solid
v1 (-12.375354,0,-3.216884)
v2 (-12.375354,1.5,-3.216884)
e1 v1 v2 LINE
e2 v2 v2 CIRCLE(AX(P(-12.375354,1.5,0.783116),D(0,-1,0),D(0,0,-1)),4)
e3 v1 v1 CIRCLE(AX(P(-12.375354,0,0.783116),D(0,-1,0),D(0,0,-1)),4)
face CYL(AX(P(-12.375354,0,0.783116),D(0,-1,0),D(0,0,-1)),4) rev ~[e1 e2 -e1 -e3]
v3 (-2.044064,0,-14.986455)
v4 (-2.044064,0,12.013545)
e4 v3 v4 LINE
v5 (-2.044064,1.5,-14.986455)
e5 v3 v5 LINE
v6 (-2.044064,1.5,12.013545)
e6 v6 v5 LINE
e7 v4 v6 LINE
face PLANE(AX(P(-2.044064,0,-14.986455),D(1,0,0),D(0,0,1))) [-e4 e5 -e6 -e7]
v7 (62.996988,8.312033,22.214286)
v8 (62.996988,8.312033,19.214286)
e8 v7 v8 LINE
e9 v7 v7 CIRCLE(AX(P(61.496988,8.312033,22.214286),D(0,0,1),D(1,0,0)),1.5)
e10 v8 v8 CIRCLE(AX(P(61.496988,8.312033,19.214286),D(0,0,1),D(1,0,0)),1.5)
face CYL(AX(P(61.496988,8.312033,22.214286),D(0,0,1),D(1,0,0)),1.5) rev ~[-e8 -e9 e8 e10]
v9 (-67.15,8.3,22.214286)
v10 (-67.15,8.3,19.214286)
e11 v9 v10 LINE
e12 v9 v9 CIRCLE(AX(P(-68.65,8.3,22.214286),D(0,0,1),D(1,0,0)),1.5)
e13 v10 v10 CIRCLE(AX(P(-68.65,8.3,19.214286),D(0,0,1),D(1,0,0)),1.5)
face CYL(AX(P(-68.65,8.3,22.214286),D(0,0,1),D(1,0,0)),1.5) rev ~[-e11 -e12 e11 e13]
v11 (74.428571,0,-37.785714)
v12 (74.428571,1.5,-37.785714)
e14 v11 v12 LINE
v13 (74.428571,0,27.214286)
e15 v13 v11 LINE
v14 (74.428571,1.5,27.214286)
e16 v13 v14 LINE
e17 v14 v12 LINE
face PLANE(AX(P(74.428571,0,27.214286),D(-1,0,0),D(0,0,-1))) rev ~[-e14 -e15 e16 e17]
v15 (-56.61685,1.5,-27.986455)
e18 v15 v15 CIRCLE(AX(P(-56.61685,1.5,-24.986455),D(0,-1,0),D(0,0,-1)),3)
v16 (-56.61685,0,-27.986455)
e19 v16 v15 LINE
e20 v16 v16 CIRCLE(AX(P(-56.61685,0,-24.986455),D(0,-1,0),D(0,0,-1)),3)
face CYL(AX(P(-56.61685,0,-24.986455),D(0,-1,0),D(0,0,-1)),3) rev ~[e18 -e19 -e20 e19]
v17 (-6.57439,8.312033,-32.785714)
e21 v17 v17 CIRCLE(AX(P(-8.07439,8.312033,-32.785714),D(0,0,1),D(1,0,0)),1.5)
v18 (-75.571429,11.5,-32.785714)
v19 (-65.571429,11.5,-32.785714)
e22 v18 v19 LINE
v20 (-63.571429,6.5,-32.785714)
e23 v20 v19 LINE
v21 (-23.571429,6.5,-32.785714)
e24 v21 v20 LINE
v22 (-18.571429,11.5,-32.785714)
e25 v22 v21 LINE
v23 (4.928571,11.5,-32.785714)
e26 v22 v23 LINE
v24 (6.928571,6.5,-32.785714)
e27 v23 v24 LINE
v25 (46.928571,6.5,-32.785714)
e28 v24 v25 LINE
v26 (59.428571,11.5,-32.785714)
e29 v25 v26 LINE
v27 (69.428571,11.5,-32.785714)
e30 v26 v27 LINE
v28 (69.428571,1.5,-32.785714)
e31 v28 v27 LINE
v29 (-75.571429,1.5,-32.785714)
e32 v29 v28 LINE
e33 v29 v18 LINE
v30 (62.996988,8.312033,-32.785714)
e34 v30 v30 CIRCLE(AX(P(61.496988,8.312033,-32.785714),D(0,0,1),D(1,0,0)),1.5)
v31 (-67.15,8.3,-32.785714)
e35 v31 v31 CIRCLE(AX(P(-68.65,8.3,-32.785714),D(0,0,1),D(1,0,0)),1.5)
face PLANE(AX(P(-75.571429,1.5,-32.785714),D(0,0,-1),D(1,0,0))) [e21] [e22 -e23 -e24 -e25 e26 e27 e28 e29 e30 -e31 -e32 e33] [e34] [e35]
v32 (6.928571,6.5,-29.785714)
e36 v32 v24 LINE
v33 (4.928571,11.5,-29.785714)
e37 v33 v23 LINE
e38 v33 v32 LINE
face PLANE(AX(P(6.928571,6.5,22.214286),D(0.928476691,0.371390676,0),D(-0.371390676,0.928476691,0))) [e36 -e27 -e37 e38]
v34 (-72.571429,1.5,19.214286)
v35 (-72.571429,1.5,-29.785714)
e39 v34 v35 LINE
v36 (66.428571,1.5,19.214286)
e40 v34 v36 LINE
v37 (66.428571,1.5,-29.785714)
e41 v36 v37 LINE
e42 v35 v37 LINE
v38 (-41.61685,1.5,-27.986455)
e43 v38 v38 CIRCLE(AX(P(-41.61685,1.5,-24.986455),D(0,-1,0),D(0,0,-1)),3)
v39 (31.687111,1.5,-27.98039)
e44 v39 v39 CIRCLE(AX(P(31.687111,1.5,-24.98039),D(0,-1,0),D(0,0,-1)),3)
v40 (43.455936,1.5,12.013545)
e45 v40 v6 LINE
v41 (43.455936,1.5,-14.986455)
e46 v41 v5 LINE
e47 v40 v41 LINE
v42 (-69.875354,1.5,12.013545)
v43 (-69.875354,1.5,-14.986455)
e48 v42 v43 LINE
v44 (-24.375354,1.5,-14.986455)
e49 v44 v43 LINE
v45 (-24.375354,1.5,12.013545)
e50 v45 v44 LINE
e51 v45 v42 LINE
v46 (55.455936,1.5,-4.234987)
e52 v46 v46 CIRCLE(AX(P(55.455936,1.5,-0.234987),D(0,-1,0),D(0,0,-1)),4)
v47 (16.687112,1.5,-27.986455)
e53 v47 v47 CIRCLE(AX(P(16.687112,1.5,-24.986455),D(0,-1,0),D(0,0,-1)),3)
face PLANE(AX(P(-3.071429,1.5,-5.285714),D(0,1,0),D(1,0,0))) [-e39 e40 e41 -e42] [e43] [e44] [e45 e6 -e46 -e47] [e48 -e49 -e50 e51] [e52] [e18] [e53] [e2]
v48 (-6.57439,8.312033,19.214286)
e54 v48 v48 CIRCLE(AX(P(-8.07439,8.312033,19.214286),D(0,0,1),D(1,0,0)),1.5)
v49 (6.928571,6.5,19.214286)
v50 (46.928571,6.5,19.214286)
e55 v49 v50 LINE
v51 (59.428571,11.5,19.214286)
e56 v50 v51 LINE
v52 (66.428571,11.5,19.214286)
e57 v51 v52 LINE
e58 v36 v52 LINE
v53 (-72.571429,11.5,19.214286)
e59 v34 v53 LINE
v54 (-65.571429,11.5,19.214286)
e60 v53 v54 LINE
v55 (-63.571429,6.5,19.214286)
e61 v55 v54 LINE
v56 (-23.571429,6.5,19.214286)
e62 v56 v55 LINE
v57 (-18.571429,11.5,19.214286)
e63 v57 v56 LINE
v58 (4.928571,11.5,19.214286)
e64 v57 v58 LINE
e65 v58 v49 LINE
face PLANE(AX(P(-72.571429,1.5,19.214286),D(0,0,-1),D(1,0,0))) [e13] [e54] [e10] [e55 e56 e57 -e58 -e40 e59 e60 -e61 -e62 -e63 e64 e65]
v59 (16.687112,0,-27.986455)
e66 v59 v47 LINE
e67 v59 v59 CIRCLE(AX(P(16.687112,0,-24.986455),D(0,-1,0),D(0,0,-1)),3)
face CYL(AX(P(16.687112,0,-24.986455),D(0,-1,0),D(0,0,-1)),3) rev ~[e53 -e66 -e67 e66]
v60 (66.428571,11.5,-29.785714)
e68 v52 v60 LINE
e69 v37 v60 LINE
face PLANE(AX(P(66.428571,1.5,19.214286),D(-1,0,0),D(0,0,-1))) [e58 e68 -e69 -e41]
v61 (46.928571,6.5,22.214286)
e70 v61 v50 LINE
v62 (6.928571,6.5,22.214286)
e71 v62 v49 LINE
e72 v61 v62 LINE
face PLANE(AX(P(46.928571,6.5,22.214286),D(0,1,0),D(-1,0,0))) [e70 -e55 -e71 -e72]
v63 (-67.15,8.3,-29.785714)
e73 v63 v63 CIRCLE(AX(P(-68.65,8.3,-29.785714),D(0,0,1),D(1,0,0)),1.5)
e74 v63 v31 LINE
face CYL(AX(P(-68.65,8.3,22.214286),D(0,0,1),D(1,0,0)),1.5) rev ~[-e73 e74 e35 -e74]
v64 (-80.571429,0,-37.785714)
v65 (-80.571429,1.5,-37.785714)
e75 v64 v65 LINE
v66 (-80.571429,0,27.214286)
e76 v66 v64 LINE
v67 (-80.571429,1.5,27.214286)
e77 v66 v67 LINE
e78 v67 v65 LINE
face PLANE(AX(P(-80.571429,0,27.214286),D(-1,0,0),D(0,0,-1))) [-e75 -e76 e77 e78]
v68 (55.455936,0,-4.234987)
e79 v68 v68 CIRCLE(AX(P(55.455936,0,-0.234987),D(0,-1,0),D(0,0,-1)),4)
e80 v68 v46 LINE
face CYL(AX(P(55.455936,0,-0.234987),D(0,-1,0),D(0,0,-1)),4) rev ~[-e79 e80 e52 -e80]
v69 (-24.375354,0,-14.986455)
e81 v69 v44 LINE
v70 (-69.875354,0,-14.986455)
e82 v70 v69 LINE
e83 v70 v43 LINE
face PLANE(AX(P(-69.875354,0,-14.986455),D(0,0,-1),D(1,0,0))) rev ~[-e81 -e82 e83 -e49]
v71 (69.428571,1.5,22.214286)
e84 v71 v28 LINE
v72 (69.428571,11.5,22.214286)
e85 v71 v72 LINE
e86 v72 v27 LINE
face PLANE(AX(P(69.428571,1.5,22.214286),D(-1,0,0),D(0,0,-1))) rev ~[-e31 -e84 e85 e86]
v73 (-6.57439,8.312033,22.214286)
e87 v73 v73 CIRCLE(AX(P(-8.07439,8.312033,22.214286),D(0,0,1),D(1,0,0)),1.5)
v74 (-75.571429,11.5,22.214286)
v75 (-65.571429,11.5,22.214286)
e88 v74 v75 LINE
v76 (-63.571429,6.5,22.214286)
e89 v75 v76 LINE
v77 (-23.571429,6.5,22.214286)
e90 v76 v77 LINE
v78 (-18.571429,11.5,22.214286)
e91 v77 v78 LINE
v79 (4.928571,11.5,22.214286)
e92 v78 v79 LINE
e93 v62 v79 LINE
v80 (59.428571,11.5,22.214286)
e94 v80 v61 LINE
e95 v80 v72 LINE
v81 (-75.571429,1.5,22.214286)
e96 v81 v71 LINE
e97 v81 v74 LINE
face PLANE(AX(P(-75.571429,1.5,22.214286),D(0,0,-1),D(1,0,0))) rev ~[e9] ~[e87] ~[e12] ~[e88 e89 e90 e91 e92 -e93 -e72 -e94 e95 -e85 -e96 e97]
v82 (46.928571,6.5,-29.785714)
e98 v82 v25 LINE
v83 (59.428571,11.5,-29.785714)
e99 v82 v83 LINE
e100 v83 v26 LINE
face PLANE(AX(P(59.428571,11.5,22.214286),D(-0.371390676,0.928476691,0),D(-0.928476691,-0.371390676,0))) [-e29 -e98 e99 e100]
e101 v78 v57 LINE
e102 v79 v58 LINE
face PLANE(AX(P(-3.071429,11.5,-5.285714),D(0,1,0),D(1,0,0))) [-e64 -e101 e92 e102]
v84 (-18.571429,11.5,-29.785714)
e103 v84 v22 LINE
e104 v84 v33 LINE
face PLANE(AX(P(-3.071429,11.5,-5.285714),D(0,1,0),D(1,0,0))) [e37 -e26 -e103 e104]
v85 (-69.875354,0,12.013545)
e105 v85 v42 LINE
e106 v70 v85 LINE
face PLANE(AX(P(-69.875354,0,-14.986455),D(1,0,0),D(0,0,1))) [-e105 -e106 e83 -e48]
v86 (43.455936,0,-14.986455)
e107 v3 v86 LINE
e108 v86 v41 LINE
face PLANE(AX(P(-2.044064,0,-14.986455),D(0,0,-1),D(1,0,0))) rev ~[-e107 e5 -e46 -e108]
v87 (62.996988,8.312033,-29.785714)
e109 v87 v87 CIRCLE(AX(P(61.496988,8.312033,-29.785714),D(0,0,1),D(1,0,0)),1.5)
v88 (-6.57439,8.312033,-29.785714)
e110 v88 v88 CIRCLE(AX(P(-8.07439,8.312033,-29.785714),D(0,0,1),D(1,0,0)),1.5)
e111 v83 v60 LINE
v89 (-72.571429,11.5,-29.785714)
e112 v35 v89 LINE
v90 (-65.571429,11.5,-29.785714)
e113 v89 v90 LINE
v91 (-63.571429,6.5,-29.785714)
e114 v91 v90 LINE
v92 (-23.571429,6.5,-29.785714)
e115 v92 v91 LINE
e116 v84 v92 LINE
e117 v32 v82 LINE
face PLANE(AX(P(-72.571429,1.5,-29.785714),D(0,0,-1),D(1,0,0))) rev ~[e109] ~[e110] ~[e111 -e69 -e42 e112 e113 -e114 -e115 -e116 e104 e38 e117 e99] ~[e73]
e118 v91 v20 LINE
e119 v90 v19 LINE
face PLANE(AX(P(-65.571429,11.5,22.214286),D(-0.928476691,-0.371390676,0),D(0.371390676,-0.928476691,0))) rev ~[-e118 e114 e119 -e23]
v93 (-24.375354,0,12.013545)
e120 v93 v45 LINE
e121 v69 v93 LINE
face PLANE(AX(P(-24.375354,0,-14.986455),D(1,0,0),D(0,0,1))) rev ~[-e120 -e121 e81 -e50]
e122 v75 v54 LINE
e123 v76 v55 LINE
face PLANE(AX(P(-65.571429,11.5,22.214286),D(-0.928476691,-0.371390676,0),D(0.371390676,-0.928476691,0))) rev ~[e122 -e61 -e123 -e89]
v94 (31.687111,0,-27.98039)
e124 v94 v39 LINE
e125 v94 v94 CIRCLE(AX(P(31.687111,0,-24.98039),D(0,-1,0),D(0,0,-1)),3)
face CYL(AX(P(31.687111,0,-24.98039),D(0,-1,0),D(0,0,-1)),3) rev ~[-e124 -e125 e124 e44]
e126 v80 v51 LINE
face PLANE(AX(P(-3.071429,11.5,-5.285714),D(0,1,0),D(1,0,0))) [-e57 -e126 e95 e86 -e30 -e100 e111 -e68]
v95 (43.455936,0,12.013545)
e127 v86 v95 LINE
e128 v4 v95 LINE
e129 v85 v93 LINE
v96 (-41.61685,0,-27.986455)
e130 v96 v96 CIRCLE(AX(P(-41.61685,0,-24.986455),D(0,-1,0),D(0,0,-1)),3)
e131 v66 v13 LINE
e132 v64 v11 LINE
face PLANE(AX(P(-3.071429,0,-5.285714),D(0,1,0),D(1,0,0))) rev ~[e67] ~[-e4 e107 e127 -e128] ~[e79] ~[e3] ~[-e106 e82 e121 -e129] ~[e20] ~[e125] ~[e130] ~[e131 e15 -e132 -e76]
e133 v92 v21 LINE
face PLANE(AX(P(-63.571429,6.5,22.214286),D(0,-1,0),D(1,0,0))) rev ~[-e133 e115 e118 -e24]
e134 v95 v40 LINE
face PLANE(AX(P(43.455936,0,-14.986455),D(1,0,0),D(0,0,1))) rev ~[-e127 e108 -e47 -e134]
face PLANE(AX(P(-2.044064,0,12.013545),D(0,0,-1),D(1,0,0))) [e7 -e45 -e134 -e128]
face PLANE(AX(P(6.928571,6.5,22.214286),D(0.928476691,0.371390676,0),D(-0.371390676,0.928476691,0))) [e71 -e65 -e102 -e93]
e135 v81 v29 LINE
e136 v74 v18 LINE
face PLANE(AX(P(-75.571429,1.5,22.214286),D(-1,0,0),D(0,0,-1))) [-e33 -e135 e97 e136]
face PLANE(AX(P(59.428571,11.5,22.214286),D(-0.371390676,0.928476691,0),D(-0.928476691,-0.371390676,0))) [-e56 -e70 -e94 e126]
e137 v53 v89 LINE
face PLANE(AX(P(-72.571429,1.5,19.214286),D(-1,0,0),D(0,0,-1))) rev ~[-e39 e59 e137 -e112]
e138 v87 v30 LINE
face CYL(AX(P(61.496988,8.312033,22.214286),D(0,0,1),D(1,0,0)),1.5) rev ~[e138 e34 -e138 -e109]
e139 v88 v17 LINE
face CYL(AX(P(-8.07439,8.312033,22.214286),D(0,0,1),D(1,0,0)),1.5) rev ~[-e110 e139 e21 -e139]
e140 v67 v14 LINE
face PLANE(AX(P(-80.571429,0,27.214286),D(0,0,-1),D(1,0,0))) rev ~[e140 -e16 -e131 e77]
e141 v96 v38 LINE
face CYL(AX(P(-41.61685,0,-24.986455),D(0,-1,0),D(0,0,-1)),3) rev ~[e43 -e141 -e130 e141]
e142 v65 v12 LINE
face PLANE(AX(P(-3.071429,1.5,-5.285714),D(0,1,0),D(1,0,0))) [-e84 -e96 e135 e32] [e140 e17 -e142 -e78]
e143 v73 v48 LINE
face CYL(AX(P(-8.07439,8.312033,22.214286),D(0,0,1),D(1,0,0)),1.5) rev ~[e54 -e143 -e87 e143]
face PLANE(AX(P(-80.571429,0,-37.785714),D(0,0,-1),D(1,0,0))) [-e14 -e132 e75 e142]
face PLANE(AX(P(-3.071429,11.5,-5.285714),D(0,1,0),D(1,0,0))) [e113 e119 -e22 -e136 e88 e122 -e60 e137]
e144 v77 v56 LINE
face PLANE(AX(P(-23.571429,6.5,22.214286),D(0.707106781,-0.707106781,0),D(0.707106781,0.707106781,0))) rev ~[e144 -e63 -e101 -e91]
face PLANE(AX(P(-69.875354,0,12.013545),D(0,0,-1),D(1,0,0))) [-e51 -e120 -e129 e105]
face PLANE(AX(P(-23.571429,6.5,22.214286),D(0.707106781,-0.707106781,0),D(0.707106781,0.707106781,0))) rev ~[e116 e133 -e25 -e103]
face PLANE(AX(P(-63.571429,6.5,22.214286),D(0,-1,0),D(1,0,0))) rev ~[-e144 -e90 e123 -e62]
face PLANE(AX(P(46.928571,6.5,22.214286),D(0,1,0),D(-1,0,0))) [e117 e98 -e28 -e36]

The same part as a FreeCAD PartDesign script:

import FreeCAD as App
import Part
import Sketcher
Q = App.Units.Quantity


def add_polygon(sketch, points):
    """Adds a closed chain of lines whose ends are joined by coincident constraints."""
    first, n = sketch.GeometryCount, len(points)
    for a, b in zip(points, points[1:] + points[:1]):
        sketch.addGeometry(Part.LineSegment(App.Vector(*a, 0), App.Vector(*b, 0)), False)
    for i in range(n):
        sketch.addConstraint(Sketcher.Constraint("Coincident", first + i, 2, first + (i + 1) % n, 1))

doc = App.newDocument("Part")
body = doc.addObject("PartDesign::Body", "Body")

sketch1 = doc.addObject("Sketcher::SketchObject", "Sketch")
body.addObject(sketch1)
sketch1.AttachmentSupport = (doc.XZ_Plane, [""])
sketch1.MapMode = "FlatFace"
add_polygon(sketch1, [(-81, -38), (-81, 27), (74, 27), (74, -38)])
sketch1.addConstraint([
    Sketcher.Constraint("Vertical", 0),
    Sketcher.Constraint("Horizontal", 1),
    Sketcher.Constraint("Vertical", 2),
    Sketcher.Constraint("Horizontal", 3),
    Sketcher.Constraint("DistanceX", 1, 1, 1, 2, Q("155 mm")),
    Sketcher.Constraint("DistanceY", 0, 1, 0, 2, Q("65 mm")),
    Sketcher.Constraint("DistanceX", 0, 2, -1, 1, Q("80.571429 mm")),
    Sketcher.Constraint("DistanceY", -1, 1, 0, 2, Q("27.214286 mm")),
])
pad1 = doc.addObject("PartDesign::Pad", "Pad")
body.addObject(pad1)
pad1.Profile = sketch1
pad1.Length = 1.5
pad1.Reversed = True

sketch2 = doc.addObject("Sketcher::SketchObject", "Sketch001")
body.addObject(sketch2)
sketch2.AttachmentSupport = (doc.XZ_Plane, [""])
sketch2.MapMode = "FlatFace"
sketch2.AttachmentOffset = App.Placement(App.Vector(0, 0, -1.5), App.Rotation())
add_polygon(sketch2, [(-76, -33), (-76, 22), (69, 22), (69, -33)])
add_polygon(sketch2, [(66, 19), (-73, 19), (-73, -30), (66, -30)])
sketch2.addConstraint([
    Sketcher.Constraint("Vertical", 0),
    Sketcher.Constraint("Horizontal", 1),
    Sketcher.Constraint("Vertical", 2),
    Sketcher.Constraint("Horizontal", 3),
    Sketcher.Constraint("Horizontal", 4),
    Sketcher.Constraint("Vertical", 5),
    Sketcher.Constraint("Horizontal", 6),
    Sketcher.Constraint("Vertical", 7),
    Sketcher.Constraint("DistanceX", 1, 1, 1, 2, Q("145 mm")),
    Sketcher.Constraint("DistanceX", 4, 2, 4, 1, Q("139 mm")),
    Sketcher.Constraint("DistanceY", 0, 1, 0, 2, Q("55 mm")),
    Sketcher.Constraint("DistanceY", 5, 2, 5, 1, Q("49 mm")),
    Sketcher.Constraint("DistanceX", 0, 2, 4, 2, Q("3 mm")),
    Sketcher.Constraint("DistanceY", 4, 2, 0, 2, Q("3 mm")),
    Sketcher.Constraint("DistanceX", 0, 2, -1, 1, Q("75.571429 mm")),
    Sketcher.Constraint("DistanceY", -1, 1, 0, 2, Q("22.214286 mm")),
])
pad2 = doc.addObject("PartDesign::Pad", "Pad001")
body.addObject(pad2)
pad2.Profile = sketch2
pad2.Length = 10
pad2.Reversed = True

sketch3 = doc.addObject("Sketcher::SketchObject", "Sketch002")
body.addObject(sketch3)
sketch3.AttachmentSupport = (doc.XY_Plane, [""])
sketch3.MapMode = "FlatFace"
sketch3.AttachmentOffset = App.Placement(App.Vector(0, 0, 22.214286), App.Rotation())
add_polygon(sketch3, [(-66, 12), (-64, 6), (-24, 6), (-19, 12)])
add_polygon(sketch3, [(59, 12), (5, 12), (7, 6), (47, 6)])
sketch3.addConstraint([
    Sketcher.Constraint("Horizontal", 1),
    Sketcher.Constraint("Horizontal", 3),
    Sketcher.Constraint("Horizontal", 4),
    Sketcher.Constraint("Horizontal", 6),
    Sketcher.Constraint("Parallel", 0, 5),
    Sketcher.Constraint("Perpendicular", 5, 7),
    Sketcher.Constraint("Horizontal", 3, 2, 4, 2),
    Sketcher.Constraint("Horizontal", 1, 2, 5, 2),
    Sketcher.Constraint("Equal", 1, 6),
    Sketcher.Constraint("DistanceX", 1, 1, 1, 2, Q("40 mm")),
    Sketcher.Constraint("DistanceX", 3, 2, 3, 1, Q("47 mm")),
    Sketcher.Constraint("Angle", 2, Q("45 deg")),
    Sketcher.Constraint("DistanceX", 4, 2, 4, 1, Q("54.5 mm")),
    Sketcher.Constraint("DistanceX", 2, 2, 7, 2, Q("78 mm")),
    Sketcher.Constraint("DistanceY", -1, 1, 0, 2, Q("6.5 mm")),
    Sketcher.Constraint("DistanceX", 0, 2, -1, 1, Q("63.571429 mm")),
])
pocket1 = doc.addObject("PartDesign::Pocket", "Pocket")
body.addObject(pocket1)
pocket1.Profile = sketch3
pocket1.Length = 91

sketch4 = doc.addObject("Sketcher::SketchObject", "Sketch003")
body.addObject(sketch4)
sketch4.AttachmentSupport = (doc.XZ_Plane, [""])
sketch4.MapMode = "FlatFace"
sketch4.addGeometry(Part.Circle(App.Vector(16.7, -25, 0), App.Vector(0, 0, 1), 3), False)
sketch4.addGeometry(Part.Circle(App.Vector(31.7, -25, 0), App.Vector(0, 0, 1), 3), False)
sketch4.addGeometry(Part.Circle(App.Vector(55.5, -0.2, 0), App.Vector(0, 0, 1), 4), False)
sketch4.addGeometry(Part.Circle(App.Vector(-12.4, 0.8, 0), App.Vector(0, 0, 1), 4), False)
sketch4.addGeometry(Part.Circle(App.Vector(-56.6, -25, 0), App.Vector(0, 0, 1), 3), False)
sketch4.addGeometry(Part.Circle(App.Vector(-41.6, -25, 0), App.Vector(0, 0, 1), 3), False)
add_polygon(sketch4, [(-2, 12), (-2, -15), (43.5, -15), (43.5, 12)])
add_polygon(sketch4, [(-69.9, 12), (-69.9, -15), (-24.4, -15), (-24.4, 12)])
sketch4.addConstraint([
    Sketcher.Constraint("Vertical", 6),
    Sketcher.Constraint("Horizontal", 7),
    Sketcher.Constraint("Vertical", 8),
    Sketcher.Constraint("Horizontal", 9),
    Sketcher.Constraint("Vertical", 10),
    Sketcher.Constraint("Horizontal", 11),
    Sketcher.Constraint("Vertical", 12),
    Sketcher.Constraint("Horizontal", 13),
    Sketcher.Constraint("Equal", 0, 1),
    Sketcher.Constraint("Equal", 2, 3),
    Sketcher.Constraint("Equal", 1, 4),
    Sketcher.Constraint("Equal", 4, 5),
    Sketcher.Constraint("Horizontal", 0, 3, 4, 3),
    Sketcher.Constraint("Horizontal", 4, 3, 5, 3),
    Sketcher.Constraint("Horizontal", 7, 2, 10, 2),
    Sketcher.Constraint("Horizontal", 9, 2, 12, 2),
    Sketcher.Constraint("Equal", 9, 11),
    Sketcher.Constraint("Diameter", 0, Q("6 mm")),
    Sketcher.Constraint("Diameter", 2, Q("8 mm")),
    Sketcher.Constraint("DistanceY", 6, 2, 6, 1, Q("27 mm")),
    Sketcher.Constraint("DistanceX", 7, 1, 7, 2, Q("45.5 mm")),
    Sketcher.Constraint("DistanceX", 0, 3, 1, 3, Q("14.999999 mm")),
    Sketcher.Constraint("DistanceX", 4, 3, 5, 3, Q("15 mm")),
    Sketcher.Constraint("DistanceY", 0, 3, 6, 2, Q("10 mm")),
    Sketcher.Constraint("DistanceX", 7, 2, 2, 3, Q("12 mm")),
    Sketcher.Constraint("DistanceX", 11, 2, 3, 3, Q("12 mm")),
    Sketcher.Constraint("DistanceX", -1, 1, 1, 3, Q("31.687111 mm")),
    Sketcher.Constraint("DistanceY", 1, 3, -1, 1, Q("24.98039 mm")),
    Sketcher.Constraint("DistanceX", 4, 3, -1, 1, Q("56.61685 mm")),
    Sketcher.Constraint("DistanceY", 0, 3, 3, 3, Q("25.769571 mm")),
    Sketcher.Constraint("DistanceX", 3, 3, 2, 3, Q("67.83129 mm")),
    Sketcher.Constraint("DistanceY", 0, 3, -1, 1, Q("24.986455 mm")),
    Sketcher.Constraint("DistanceX", -1, 1, 2, 3, Q("55.455936 mm")),
    Sketcher.Constraint("DistanceY", 2, 3, -1, 1, Q("0.234987 mm")),
])
pocket2 = doc.addObject("PartDesign::Pocket", "Pocket001")
body.addObject(pocket2)
pocket2.Profile = sketch4
pocket2.Length = 91

sketch5 = doc.addObject("Sketcher::SketchObject", "Sketch004")
body.addObject(sketch5)
sketch5.AttachmentSupport = (doc.XY_Plane, [""])
sketch5.MapMode = "FlatFace"
sketch5.AttachmentOffset = App.Placement(App.Vector(0, 0, 22.214286), App.Rotation())
sketch5.addGeometry([
    Part.Circle(App.Vector(-8.1, 8.3, 0), App.Vector(0, 0, 1), 1.5),
    Part.Circle(App.Vector(61.5, 8.3, 0), App.Vector(0, 0, 1), 1.5),
    Part.Circle(App.Vector(-68.7, 8.3, 0), App.Vector(0, 0, 1), 1.5),
], False)
sketch5.addConstraint([
    Sketcher.Constraint("Equal", 0, 1),
    Sketcher.Constraint("Equal", 1, 2),
    Sketcher.Constraint("Horizontal", 0, 3, 1, 3),
    Sketcher.Constraint("Diameter", 0, Q("3 mm")),
    Sketcher.Constraint("DistanceY", -1, 1, 2, 3, Q("8.3 mm")),
    Sketcher.Constraint("DistanceX", 2, 3, -1, 1, Q("68.65 mm")),
    Sketcher.Constraint("DistanceX", 0, 3, -1, 1, Q("8.07439 mm")),
    Sketcher.Constraint("DistanceY", -1, 1, 0, 3, Q("8.312033 mm")),
    Sketcher.Constraint("DistanceX", -1, 1, 1, 3, Q("61.496988 mm")),
])
pocket3 = doc.addObject("PartDesign::Pocket", "Pocket002")
body.addObject(pocket3)
pocket3.Profile = sketch5
pocket3.Length = 91

doc.recompute()
